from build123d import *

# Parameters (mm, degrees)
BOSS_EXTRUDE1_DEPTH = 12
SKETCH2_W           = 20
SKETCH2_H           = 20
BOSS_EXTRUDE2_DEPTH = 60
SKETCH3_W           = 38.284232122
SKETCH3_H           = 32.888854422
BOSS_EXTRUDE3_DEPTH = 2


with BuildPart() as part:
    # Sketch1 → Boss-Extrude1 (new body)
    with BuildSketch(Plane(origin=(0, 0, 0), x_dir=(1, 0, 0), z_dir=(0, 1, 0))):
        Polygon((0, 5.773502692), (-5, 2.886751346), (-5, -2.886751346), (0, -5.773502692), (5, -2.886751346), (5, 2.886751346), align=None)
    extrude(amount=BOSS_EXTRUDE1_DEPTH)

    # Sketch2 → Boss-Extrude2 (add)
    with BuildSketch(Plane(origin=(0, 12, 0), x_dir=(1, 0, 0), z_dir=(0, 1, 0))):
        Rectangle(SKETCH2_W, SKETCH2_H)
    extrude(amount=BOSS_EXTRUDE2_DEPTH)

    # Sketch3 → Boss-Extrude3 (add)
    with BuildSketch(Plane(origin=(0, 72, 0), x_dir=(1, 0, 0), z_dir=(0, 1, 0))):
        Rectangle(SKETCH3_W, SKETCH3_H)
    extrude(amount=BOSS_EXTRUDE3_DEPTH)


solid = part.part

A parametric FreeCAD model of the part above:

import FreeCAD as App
import Part
import Sketcher

V = App.Vector
Q = App.Units.Quantity

doc = App.newDocument("Part")
body = doc.addObject("PartDesign::Body", "Body")

# Sketch on XZ plane
sketch1 = doc.addObject("Sketcher::SketchObject", "Sketch")
body.addObject(sketch1)
sketch1.AttachmentSupport = (doc.XZ_Plane, [""])
sketch1.MapMode = "FlatFace"
sketch1.addGeometry(Part.LineSegment(V(0, -5.773503, 0), V(-5, -2.886751, 0)), False)
sketch1.addGeometry(Part.LineSegment(V(-5, -2.886751, 0), V(-5, 2.886751, 0)), False)
sketch1.addGeometry(Part.LineSegment(V(-5, 2.886751, 0), V(0, 5.773503, 0)), False)
sketch1.addGeometry(Part.LineSegment(V(0, 5.773503, 0), V(5, 2.886751, 0)), False)
sketch1.addGeometry(Part.LineSegment(V(5, 2.886751, 0), V(5, -2.886751, 0)), False)
sketch1.addGeometry(Part.LineSegment(V(5, -2.886751, 0), V(0, -5.773503, 0)), False)
sketch1.addConstraint(Sketcher.Constraint("Coincident", 0, 2, 1, 1))
sketch1.addConstraint(Sketcher.Constraint("Coincident", 1, 2, 2, 1))
sketch1.addConstraint(Sketcher.Constraint("Coincident", 2, 2, 3, 1))
sketch1.addConstraint(Sketcher.Constraint("Coincident", 3, 2, 4, 1))
sketch1.addConstraint(Sketcher.Constraint("Coincident", 4, 2, 5, 1))
sketch1.addConstraint(Sketcher.Constraint("Coincident", 5, 2, 0, 1))
sketch1.addConstraint(Sketcher.Constraint("Vertical", 1))
sketch1.addConstraint(Sketcher.Constraint("Vertical", 4))
sketch1.addConstraint(Sketcher.Constraint("Symmetric", 0, 2, 3, 2, -1, 1))
sketch1.addConstraint(Sketcher.Constraint("Symmetric", 2, 2, 5, 2, -1, 1))
sketch1.addConstraint(Sketcher.Constraint("PointOnObject", 2, 2, -2))
sketch1.addConstraint(Sketcher.Constraint("Parallel", 2, 5))
sketch1.addConstraint(Sketcher.Constraint("Horizontal", 1, 2, 3, 2))
sketch1.addConstraint(Sketcher.Constraint("Angle", 0, Q("150 deg")))
sketch1.addConstraint(Sketcher.Constraint("DistanceX", 0, 2, -1, 1, Q("5 mm")))
sketch1.addConstraint(Sketcher.Constraint("DistanceY", 1, 1, 1, 2, Q("5.773503 mm")))
pad1 = doc.addObject("PartDesign::Pad", "Pad")
body.addObject(pad1)
pad1.Profile = sketch1
pad1.Length = 12
pad1.Reversed = True

# Sketch on XZ plane
sketch2 = doc.addObject("Sketcher::SketchObject", "Sketch001")
body.addObject(sketch2)
sketch2.AttachmentSupport = (doc.XZ_Plane, [""])
sketch2.MapMode = "FlatFace"
sketch2.AttachmentOffset = App.Placement(V(0, 0, -12), App.Rotation())
sketch2.addGeometry(Part.LineSegment(V(-10, -10, 0), V(-10, 10, 0)), False)
sketch2.addGeometry(Part.LineSegment(V(-10, 10, 0), V(10, 10, 0)), False)
sketch2.addGeometry(Part.LineSegment(V(10, 10, 0), V(10, -10, 0)), False)
sketch2.addGeometry(Part.LineSegment(V(10, -10, 0), V(-10, -10, 0)), False)
sketch2.addConstraint(Sketcher.Constraint("Coincident", 0, 2, 1, 1))
sketch2.addConstraint(Sketcher.Constraint("Coincident", 1, 2, 2, 1))
sketch2.addConstraint(Sketcher.Constraint("Coincident", 2, 2, 3, 1))
sketch2.addConstraint(Sketcher.Constraint("Coincident", 3, 2, 0, 1))
sketch2.addConstraint(Sketcher.Constraint("Vertical", 0))
sketch2.addConstraint(Sketcher.Constraint("Horizontal", 1))
sketch2.addConstraint(Sketcher.Constraint("Vertical", 2))
sketch2.addConstraint(Sketcher.Constraint("Horizontal", 3))
sketch2.addConstraint(Sketcher.Constraint("Symmetric", 0, 2, 2, 2, -1, 1))
sketch2.addConstraint(Sketcher.Constraint("Equal", 3, 0))
sketch2.addConstraint(Sketcher.Constraint("DistanceX", 1, 1, 1, 2, Q("20 mm")))
pad2 = doc.addObject("PartDesign::Pad", "Pad001")
body.addObject(pad2)
pad2.Profile = sketch2
pad2.Length = 60
pad2.Reversed = True

# Sketch on XZ plane
sketch3 = doc.addObject("Sketcher::SketchObject", "Sketch002")
body.addObject(sketch3)
sketch3.AttachmentSupport = (doc.XZ_Plane, [""])
sketch3.MapMode = "FlatFace"
sketch3.AttachmentOffset = App.Placement(V(0, 0, -72), App.Rotation())
sketch3.addGeometry(Part.LineSegment(V(-19.142116, -16.444427, 0), V(-19.142116, 16.444427, 0)), False)
sketch3.addGeometry(Part.LineSegment(V(-19.142116, 16.444427, 0), V(19.142116, 16.444427, 0)), False)
sketch3.addGeometry(Part.LineSegment(V(19.142116, 16.444427, 0), V(19.142116, -16.444427, 0)), False)
sketch3.addGeometry(Part.LineSegment(V(19.142116, -16.444427, 0), V(-19.142116, -16.444427, 0)), False)
sketch3.addConstraint(Sketcher.Constraint("Coincident", 0, 2, 1, 1))
sketch3.addConstraint(Sketcher.Constraint("Coincident", 1, 2, 2, 1))
sketch3.addConstraint(Sketcher.Constraint("Coincident", 2, 2, 3, 1))
sketch3.addConstraint(Sketcher.Constraint("Coincident", 3, 2, 0, 1))
sketch3.addConstraint(Sketcher.Constraint("Vertical", 0))
sketch3.addConstraint(Sketcher.Constraint("Horizontal", 1))
sketch3.addConstraint(Sketcher.Constraint("Vertical", 2))
sketch3.addConstraint(Sketcher.Constraint("Horizontal", 3))
sketch3.addConstraint(Sketcher.Constraint("Symmetric", 0, 2, 2, 2, -1, 1))
sketch3.addConstraint(Sketcher.Constraint("DistanceX", 1, 1, 1, 2, Q("38.284232 mm")))
sketch3.addConstraint(Sketcher.Constraint("DistanceY", 0, 1, 0, 2, Q("32.888854 mm")))
pad3 = doc.addObject("PartDesign::Pad", "Pad002")
body.addObject(pad3)
pad3.Profile = sketch3
pad3.Length = 2
pad3.Reversed = True

doc.recompute()
